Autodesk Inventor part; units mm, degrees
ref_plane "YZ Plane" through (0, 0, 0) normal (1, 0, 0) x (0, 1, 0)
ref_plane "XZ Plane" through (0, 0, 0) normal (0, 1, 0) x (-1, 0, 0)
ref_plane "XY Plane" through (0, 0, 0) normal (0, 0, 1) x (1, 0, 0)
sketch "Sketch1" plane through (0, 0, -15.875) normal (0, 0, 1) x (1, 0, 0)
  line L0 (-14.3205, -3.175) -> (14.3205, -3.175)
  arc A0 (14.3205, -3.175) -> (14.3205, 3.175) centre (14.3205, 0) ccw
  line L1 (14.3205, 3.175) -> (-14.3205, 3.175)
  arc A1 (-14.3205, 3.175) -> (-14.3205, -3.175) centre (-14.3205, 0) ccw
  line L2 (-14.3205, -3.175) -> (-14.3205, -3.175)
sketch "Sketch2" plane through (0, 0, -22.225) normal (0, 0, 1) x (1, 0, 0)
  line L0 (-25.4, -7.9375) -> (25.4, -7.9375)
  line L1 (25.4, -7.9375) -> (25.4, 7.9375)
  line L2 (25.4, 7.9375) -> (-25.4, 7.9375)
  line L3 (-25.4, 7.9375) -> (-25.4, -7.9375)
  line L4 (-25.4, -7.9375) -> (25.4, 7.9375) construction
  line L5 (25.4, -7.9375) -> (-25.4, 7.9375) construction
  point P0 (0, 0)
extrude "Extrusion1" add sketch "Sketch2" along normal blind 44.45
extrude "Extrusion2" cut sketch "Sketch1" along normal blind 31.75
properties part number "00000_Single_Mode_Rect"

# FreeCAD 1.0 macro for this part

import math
import FreeCAD as App
import Part
import Sketcher
from FreeCAD import Vector
Q = App.Units.Quantity


def add_polygon(sketch, points):
    """Adds a closed chain of lines whose ends are joined by coincident constraints."""
    first, n = sketch.GeometryCount, len(points)
    for a, b in zip(points, points[1:] + points[:1]):
        sketch.addGeometry(Part.LineSegment(App.Vector(*a, 0), App.Vector(*b, 0)), False)
    for i in range(n):
        sketch.addConstraint(Sketcher.Constraint("Coincident", first + i, 2, first + (i + 1) % n, 1))

doc = App.newDocument("Part")
body = doc.addObject("PartDesign::Body", "Body")

# Sketch on XY plane
sketch1 = doc.addObject("Sketcher::SketchObject", "Sketch")
body.addObject(sketch1)
sketch1.AttachmentSupport = (doc.XY_Plane, [""])
sketch1.MapMode = "FlatFace"
sketch1.AttachmentOffset = App.Placement(Vector(0, 0, -0.875 * 25.4), App.Rotation())
add_polygon(sketch1, [(-25, 8), (-25, -8), (25, -8), (25, 8)])  # lines 0-3
sketch1.addConstraint([
    Sketcher.Constraint("Vertical", 0),
    Sketcher.Constraint("Horizontal", 1),
    Sketcher.Constraint("Vertical", 2),
    Sketcher.Constraint("Horizontal", 3),
    Sketcher.Constraint("Symmetric", 0, 2, 2, 2, -1, 1),
    Sketcher.Constraint("DistanceX", 1, 1, 1, 2, Q("2 in")),
    Sketcher.Constraint("DistanceY", 0, 2, 0, 1, Q("0.625 in")),
])
pad1 = doc.addObject("PartDesign::Pad", "Pad")
body.addObject(pad1)
pad1.Profile = sketch1
pad1.Length = Q("1.75 in")

# Sketch on XY plane
sketch2 = doc.addObject("Sketcher::SketchObject", "Sketch001")
body.addObject(sketch2)
sketch2.AttachmentSupport = (doc.XY_Plane, [""])
sketch2.MapMode = "FlatFace"
sketch2.AttachmentOffset = App.Placement(Vector(0, 0, -0.625 * 25.4), App.Rotation())
sketch2.addGeometry([
    Part.ArcOfCircle(Part.Circle(Vector(-14.3, 0, 0), Vector(0, 0, 1), 3.2), math.radians(90), math.radians(270)),
    Part.LineSegment(Vector(-14.3, -3.2, 0), Vector(14.3, -3.2, 0)),
    Part.ArcOfCircle(Part.Circle(Vector(14.3, 0, 0), Vector(0, 0, 1), 3.2), math.radians(-90), math.radians(90)),
    Part.LineSegment(Vector(14.3, 3.2, 0), Vector(-14.3, 3.2, 0)),
], False)
sketch2.addConstraint([
    Sketcher.Constraint("Tangent", 0, 2, 1, 1),
    Sketcher.Constraint("Tangent", 1, 2, 2, 1),
    Sketcher.Constraint("Tangent", 2, 2, 3, 1),
    Sketcher.Constraint("Tangent", 3, 2, 0, 1),
    Sketcher.Constraint("Horizontal", 1),
    Sketcher.Constraint("Horizontal", 3),
    Sketcher.Constraint("Symmetric", 0, 3, 2, 3, -1, 1),
    Sketcher.Constraint("Radius", 0, Q("0.125 in")),
    Sketcher.Constraint("DistanceX", 1, 1, 1, 2, Q("1.1276 in")),
])
pocket1 = doc.addObject("PartDesign::Pocket", "Pocket")
body.addObject(pocket1)
pocket1.Profile = sketch2
pocket1.Length = Q("1.25 in")
pocket1.Reversed = True

doc.recompute()
